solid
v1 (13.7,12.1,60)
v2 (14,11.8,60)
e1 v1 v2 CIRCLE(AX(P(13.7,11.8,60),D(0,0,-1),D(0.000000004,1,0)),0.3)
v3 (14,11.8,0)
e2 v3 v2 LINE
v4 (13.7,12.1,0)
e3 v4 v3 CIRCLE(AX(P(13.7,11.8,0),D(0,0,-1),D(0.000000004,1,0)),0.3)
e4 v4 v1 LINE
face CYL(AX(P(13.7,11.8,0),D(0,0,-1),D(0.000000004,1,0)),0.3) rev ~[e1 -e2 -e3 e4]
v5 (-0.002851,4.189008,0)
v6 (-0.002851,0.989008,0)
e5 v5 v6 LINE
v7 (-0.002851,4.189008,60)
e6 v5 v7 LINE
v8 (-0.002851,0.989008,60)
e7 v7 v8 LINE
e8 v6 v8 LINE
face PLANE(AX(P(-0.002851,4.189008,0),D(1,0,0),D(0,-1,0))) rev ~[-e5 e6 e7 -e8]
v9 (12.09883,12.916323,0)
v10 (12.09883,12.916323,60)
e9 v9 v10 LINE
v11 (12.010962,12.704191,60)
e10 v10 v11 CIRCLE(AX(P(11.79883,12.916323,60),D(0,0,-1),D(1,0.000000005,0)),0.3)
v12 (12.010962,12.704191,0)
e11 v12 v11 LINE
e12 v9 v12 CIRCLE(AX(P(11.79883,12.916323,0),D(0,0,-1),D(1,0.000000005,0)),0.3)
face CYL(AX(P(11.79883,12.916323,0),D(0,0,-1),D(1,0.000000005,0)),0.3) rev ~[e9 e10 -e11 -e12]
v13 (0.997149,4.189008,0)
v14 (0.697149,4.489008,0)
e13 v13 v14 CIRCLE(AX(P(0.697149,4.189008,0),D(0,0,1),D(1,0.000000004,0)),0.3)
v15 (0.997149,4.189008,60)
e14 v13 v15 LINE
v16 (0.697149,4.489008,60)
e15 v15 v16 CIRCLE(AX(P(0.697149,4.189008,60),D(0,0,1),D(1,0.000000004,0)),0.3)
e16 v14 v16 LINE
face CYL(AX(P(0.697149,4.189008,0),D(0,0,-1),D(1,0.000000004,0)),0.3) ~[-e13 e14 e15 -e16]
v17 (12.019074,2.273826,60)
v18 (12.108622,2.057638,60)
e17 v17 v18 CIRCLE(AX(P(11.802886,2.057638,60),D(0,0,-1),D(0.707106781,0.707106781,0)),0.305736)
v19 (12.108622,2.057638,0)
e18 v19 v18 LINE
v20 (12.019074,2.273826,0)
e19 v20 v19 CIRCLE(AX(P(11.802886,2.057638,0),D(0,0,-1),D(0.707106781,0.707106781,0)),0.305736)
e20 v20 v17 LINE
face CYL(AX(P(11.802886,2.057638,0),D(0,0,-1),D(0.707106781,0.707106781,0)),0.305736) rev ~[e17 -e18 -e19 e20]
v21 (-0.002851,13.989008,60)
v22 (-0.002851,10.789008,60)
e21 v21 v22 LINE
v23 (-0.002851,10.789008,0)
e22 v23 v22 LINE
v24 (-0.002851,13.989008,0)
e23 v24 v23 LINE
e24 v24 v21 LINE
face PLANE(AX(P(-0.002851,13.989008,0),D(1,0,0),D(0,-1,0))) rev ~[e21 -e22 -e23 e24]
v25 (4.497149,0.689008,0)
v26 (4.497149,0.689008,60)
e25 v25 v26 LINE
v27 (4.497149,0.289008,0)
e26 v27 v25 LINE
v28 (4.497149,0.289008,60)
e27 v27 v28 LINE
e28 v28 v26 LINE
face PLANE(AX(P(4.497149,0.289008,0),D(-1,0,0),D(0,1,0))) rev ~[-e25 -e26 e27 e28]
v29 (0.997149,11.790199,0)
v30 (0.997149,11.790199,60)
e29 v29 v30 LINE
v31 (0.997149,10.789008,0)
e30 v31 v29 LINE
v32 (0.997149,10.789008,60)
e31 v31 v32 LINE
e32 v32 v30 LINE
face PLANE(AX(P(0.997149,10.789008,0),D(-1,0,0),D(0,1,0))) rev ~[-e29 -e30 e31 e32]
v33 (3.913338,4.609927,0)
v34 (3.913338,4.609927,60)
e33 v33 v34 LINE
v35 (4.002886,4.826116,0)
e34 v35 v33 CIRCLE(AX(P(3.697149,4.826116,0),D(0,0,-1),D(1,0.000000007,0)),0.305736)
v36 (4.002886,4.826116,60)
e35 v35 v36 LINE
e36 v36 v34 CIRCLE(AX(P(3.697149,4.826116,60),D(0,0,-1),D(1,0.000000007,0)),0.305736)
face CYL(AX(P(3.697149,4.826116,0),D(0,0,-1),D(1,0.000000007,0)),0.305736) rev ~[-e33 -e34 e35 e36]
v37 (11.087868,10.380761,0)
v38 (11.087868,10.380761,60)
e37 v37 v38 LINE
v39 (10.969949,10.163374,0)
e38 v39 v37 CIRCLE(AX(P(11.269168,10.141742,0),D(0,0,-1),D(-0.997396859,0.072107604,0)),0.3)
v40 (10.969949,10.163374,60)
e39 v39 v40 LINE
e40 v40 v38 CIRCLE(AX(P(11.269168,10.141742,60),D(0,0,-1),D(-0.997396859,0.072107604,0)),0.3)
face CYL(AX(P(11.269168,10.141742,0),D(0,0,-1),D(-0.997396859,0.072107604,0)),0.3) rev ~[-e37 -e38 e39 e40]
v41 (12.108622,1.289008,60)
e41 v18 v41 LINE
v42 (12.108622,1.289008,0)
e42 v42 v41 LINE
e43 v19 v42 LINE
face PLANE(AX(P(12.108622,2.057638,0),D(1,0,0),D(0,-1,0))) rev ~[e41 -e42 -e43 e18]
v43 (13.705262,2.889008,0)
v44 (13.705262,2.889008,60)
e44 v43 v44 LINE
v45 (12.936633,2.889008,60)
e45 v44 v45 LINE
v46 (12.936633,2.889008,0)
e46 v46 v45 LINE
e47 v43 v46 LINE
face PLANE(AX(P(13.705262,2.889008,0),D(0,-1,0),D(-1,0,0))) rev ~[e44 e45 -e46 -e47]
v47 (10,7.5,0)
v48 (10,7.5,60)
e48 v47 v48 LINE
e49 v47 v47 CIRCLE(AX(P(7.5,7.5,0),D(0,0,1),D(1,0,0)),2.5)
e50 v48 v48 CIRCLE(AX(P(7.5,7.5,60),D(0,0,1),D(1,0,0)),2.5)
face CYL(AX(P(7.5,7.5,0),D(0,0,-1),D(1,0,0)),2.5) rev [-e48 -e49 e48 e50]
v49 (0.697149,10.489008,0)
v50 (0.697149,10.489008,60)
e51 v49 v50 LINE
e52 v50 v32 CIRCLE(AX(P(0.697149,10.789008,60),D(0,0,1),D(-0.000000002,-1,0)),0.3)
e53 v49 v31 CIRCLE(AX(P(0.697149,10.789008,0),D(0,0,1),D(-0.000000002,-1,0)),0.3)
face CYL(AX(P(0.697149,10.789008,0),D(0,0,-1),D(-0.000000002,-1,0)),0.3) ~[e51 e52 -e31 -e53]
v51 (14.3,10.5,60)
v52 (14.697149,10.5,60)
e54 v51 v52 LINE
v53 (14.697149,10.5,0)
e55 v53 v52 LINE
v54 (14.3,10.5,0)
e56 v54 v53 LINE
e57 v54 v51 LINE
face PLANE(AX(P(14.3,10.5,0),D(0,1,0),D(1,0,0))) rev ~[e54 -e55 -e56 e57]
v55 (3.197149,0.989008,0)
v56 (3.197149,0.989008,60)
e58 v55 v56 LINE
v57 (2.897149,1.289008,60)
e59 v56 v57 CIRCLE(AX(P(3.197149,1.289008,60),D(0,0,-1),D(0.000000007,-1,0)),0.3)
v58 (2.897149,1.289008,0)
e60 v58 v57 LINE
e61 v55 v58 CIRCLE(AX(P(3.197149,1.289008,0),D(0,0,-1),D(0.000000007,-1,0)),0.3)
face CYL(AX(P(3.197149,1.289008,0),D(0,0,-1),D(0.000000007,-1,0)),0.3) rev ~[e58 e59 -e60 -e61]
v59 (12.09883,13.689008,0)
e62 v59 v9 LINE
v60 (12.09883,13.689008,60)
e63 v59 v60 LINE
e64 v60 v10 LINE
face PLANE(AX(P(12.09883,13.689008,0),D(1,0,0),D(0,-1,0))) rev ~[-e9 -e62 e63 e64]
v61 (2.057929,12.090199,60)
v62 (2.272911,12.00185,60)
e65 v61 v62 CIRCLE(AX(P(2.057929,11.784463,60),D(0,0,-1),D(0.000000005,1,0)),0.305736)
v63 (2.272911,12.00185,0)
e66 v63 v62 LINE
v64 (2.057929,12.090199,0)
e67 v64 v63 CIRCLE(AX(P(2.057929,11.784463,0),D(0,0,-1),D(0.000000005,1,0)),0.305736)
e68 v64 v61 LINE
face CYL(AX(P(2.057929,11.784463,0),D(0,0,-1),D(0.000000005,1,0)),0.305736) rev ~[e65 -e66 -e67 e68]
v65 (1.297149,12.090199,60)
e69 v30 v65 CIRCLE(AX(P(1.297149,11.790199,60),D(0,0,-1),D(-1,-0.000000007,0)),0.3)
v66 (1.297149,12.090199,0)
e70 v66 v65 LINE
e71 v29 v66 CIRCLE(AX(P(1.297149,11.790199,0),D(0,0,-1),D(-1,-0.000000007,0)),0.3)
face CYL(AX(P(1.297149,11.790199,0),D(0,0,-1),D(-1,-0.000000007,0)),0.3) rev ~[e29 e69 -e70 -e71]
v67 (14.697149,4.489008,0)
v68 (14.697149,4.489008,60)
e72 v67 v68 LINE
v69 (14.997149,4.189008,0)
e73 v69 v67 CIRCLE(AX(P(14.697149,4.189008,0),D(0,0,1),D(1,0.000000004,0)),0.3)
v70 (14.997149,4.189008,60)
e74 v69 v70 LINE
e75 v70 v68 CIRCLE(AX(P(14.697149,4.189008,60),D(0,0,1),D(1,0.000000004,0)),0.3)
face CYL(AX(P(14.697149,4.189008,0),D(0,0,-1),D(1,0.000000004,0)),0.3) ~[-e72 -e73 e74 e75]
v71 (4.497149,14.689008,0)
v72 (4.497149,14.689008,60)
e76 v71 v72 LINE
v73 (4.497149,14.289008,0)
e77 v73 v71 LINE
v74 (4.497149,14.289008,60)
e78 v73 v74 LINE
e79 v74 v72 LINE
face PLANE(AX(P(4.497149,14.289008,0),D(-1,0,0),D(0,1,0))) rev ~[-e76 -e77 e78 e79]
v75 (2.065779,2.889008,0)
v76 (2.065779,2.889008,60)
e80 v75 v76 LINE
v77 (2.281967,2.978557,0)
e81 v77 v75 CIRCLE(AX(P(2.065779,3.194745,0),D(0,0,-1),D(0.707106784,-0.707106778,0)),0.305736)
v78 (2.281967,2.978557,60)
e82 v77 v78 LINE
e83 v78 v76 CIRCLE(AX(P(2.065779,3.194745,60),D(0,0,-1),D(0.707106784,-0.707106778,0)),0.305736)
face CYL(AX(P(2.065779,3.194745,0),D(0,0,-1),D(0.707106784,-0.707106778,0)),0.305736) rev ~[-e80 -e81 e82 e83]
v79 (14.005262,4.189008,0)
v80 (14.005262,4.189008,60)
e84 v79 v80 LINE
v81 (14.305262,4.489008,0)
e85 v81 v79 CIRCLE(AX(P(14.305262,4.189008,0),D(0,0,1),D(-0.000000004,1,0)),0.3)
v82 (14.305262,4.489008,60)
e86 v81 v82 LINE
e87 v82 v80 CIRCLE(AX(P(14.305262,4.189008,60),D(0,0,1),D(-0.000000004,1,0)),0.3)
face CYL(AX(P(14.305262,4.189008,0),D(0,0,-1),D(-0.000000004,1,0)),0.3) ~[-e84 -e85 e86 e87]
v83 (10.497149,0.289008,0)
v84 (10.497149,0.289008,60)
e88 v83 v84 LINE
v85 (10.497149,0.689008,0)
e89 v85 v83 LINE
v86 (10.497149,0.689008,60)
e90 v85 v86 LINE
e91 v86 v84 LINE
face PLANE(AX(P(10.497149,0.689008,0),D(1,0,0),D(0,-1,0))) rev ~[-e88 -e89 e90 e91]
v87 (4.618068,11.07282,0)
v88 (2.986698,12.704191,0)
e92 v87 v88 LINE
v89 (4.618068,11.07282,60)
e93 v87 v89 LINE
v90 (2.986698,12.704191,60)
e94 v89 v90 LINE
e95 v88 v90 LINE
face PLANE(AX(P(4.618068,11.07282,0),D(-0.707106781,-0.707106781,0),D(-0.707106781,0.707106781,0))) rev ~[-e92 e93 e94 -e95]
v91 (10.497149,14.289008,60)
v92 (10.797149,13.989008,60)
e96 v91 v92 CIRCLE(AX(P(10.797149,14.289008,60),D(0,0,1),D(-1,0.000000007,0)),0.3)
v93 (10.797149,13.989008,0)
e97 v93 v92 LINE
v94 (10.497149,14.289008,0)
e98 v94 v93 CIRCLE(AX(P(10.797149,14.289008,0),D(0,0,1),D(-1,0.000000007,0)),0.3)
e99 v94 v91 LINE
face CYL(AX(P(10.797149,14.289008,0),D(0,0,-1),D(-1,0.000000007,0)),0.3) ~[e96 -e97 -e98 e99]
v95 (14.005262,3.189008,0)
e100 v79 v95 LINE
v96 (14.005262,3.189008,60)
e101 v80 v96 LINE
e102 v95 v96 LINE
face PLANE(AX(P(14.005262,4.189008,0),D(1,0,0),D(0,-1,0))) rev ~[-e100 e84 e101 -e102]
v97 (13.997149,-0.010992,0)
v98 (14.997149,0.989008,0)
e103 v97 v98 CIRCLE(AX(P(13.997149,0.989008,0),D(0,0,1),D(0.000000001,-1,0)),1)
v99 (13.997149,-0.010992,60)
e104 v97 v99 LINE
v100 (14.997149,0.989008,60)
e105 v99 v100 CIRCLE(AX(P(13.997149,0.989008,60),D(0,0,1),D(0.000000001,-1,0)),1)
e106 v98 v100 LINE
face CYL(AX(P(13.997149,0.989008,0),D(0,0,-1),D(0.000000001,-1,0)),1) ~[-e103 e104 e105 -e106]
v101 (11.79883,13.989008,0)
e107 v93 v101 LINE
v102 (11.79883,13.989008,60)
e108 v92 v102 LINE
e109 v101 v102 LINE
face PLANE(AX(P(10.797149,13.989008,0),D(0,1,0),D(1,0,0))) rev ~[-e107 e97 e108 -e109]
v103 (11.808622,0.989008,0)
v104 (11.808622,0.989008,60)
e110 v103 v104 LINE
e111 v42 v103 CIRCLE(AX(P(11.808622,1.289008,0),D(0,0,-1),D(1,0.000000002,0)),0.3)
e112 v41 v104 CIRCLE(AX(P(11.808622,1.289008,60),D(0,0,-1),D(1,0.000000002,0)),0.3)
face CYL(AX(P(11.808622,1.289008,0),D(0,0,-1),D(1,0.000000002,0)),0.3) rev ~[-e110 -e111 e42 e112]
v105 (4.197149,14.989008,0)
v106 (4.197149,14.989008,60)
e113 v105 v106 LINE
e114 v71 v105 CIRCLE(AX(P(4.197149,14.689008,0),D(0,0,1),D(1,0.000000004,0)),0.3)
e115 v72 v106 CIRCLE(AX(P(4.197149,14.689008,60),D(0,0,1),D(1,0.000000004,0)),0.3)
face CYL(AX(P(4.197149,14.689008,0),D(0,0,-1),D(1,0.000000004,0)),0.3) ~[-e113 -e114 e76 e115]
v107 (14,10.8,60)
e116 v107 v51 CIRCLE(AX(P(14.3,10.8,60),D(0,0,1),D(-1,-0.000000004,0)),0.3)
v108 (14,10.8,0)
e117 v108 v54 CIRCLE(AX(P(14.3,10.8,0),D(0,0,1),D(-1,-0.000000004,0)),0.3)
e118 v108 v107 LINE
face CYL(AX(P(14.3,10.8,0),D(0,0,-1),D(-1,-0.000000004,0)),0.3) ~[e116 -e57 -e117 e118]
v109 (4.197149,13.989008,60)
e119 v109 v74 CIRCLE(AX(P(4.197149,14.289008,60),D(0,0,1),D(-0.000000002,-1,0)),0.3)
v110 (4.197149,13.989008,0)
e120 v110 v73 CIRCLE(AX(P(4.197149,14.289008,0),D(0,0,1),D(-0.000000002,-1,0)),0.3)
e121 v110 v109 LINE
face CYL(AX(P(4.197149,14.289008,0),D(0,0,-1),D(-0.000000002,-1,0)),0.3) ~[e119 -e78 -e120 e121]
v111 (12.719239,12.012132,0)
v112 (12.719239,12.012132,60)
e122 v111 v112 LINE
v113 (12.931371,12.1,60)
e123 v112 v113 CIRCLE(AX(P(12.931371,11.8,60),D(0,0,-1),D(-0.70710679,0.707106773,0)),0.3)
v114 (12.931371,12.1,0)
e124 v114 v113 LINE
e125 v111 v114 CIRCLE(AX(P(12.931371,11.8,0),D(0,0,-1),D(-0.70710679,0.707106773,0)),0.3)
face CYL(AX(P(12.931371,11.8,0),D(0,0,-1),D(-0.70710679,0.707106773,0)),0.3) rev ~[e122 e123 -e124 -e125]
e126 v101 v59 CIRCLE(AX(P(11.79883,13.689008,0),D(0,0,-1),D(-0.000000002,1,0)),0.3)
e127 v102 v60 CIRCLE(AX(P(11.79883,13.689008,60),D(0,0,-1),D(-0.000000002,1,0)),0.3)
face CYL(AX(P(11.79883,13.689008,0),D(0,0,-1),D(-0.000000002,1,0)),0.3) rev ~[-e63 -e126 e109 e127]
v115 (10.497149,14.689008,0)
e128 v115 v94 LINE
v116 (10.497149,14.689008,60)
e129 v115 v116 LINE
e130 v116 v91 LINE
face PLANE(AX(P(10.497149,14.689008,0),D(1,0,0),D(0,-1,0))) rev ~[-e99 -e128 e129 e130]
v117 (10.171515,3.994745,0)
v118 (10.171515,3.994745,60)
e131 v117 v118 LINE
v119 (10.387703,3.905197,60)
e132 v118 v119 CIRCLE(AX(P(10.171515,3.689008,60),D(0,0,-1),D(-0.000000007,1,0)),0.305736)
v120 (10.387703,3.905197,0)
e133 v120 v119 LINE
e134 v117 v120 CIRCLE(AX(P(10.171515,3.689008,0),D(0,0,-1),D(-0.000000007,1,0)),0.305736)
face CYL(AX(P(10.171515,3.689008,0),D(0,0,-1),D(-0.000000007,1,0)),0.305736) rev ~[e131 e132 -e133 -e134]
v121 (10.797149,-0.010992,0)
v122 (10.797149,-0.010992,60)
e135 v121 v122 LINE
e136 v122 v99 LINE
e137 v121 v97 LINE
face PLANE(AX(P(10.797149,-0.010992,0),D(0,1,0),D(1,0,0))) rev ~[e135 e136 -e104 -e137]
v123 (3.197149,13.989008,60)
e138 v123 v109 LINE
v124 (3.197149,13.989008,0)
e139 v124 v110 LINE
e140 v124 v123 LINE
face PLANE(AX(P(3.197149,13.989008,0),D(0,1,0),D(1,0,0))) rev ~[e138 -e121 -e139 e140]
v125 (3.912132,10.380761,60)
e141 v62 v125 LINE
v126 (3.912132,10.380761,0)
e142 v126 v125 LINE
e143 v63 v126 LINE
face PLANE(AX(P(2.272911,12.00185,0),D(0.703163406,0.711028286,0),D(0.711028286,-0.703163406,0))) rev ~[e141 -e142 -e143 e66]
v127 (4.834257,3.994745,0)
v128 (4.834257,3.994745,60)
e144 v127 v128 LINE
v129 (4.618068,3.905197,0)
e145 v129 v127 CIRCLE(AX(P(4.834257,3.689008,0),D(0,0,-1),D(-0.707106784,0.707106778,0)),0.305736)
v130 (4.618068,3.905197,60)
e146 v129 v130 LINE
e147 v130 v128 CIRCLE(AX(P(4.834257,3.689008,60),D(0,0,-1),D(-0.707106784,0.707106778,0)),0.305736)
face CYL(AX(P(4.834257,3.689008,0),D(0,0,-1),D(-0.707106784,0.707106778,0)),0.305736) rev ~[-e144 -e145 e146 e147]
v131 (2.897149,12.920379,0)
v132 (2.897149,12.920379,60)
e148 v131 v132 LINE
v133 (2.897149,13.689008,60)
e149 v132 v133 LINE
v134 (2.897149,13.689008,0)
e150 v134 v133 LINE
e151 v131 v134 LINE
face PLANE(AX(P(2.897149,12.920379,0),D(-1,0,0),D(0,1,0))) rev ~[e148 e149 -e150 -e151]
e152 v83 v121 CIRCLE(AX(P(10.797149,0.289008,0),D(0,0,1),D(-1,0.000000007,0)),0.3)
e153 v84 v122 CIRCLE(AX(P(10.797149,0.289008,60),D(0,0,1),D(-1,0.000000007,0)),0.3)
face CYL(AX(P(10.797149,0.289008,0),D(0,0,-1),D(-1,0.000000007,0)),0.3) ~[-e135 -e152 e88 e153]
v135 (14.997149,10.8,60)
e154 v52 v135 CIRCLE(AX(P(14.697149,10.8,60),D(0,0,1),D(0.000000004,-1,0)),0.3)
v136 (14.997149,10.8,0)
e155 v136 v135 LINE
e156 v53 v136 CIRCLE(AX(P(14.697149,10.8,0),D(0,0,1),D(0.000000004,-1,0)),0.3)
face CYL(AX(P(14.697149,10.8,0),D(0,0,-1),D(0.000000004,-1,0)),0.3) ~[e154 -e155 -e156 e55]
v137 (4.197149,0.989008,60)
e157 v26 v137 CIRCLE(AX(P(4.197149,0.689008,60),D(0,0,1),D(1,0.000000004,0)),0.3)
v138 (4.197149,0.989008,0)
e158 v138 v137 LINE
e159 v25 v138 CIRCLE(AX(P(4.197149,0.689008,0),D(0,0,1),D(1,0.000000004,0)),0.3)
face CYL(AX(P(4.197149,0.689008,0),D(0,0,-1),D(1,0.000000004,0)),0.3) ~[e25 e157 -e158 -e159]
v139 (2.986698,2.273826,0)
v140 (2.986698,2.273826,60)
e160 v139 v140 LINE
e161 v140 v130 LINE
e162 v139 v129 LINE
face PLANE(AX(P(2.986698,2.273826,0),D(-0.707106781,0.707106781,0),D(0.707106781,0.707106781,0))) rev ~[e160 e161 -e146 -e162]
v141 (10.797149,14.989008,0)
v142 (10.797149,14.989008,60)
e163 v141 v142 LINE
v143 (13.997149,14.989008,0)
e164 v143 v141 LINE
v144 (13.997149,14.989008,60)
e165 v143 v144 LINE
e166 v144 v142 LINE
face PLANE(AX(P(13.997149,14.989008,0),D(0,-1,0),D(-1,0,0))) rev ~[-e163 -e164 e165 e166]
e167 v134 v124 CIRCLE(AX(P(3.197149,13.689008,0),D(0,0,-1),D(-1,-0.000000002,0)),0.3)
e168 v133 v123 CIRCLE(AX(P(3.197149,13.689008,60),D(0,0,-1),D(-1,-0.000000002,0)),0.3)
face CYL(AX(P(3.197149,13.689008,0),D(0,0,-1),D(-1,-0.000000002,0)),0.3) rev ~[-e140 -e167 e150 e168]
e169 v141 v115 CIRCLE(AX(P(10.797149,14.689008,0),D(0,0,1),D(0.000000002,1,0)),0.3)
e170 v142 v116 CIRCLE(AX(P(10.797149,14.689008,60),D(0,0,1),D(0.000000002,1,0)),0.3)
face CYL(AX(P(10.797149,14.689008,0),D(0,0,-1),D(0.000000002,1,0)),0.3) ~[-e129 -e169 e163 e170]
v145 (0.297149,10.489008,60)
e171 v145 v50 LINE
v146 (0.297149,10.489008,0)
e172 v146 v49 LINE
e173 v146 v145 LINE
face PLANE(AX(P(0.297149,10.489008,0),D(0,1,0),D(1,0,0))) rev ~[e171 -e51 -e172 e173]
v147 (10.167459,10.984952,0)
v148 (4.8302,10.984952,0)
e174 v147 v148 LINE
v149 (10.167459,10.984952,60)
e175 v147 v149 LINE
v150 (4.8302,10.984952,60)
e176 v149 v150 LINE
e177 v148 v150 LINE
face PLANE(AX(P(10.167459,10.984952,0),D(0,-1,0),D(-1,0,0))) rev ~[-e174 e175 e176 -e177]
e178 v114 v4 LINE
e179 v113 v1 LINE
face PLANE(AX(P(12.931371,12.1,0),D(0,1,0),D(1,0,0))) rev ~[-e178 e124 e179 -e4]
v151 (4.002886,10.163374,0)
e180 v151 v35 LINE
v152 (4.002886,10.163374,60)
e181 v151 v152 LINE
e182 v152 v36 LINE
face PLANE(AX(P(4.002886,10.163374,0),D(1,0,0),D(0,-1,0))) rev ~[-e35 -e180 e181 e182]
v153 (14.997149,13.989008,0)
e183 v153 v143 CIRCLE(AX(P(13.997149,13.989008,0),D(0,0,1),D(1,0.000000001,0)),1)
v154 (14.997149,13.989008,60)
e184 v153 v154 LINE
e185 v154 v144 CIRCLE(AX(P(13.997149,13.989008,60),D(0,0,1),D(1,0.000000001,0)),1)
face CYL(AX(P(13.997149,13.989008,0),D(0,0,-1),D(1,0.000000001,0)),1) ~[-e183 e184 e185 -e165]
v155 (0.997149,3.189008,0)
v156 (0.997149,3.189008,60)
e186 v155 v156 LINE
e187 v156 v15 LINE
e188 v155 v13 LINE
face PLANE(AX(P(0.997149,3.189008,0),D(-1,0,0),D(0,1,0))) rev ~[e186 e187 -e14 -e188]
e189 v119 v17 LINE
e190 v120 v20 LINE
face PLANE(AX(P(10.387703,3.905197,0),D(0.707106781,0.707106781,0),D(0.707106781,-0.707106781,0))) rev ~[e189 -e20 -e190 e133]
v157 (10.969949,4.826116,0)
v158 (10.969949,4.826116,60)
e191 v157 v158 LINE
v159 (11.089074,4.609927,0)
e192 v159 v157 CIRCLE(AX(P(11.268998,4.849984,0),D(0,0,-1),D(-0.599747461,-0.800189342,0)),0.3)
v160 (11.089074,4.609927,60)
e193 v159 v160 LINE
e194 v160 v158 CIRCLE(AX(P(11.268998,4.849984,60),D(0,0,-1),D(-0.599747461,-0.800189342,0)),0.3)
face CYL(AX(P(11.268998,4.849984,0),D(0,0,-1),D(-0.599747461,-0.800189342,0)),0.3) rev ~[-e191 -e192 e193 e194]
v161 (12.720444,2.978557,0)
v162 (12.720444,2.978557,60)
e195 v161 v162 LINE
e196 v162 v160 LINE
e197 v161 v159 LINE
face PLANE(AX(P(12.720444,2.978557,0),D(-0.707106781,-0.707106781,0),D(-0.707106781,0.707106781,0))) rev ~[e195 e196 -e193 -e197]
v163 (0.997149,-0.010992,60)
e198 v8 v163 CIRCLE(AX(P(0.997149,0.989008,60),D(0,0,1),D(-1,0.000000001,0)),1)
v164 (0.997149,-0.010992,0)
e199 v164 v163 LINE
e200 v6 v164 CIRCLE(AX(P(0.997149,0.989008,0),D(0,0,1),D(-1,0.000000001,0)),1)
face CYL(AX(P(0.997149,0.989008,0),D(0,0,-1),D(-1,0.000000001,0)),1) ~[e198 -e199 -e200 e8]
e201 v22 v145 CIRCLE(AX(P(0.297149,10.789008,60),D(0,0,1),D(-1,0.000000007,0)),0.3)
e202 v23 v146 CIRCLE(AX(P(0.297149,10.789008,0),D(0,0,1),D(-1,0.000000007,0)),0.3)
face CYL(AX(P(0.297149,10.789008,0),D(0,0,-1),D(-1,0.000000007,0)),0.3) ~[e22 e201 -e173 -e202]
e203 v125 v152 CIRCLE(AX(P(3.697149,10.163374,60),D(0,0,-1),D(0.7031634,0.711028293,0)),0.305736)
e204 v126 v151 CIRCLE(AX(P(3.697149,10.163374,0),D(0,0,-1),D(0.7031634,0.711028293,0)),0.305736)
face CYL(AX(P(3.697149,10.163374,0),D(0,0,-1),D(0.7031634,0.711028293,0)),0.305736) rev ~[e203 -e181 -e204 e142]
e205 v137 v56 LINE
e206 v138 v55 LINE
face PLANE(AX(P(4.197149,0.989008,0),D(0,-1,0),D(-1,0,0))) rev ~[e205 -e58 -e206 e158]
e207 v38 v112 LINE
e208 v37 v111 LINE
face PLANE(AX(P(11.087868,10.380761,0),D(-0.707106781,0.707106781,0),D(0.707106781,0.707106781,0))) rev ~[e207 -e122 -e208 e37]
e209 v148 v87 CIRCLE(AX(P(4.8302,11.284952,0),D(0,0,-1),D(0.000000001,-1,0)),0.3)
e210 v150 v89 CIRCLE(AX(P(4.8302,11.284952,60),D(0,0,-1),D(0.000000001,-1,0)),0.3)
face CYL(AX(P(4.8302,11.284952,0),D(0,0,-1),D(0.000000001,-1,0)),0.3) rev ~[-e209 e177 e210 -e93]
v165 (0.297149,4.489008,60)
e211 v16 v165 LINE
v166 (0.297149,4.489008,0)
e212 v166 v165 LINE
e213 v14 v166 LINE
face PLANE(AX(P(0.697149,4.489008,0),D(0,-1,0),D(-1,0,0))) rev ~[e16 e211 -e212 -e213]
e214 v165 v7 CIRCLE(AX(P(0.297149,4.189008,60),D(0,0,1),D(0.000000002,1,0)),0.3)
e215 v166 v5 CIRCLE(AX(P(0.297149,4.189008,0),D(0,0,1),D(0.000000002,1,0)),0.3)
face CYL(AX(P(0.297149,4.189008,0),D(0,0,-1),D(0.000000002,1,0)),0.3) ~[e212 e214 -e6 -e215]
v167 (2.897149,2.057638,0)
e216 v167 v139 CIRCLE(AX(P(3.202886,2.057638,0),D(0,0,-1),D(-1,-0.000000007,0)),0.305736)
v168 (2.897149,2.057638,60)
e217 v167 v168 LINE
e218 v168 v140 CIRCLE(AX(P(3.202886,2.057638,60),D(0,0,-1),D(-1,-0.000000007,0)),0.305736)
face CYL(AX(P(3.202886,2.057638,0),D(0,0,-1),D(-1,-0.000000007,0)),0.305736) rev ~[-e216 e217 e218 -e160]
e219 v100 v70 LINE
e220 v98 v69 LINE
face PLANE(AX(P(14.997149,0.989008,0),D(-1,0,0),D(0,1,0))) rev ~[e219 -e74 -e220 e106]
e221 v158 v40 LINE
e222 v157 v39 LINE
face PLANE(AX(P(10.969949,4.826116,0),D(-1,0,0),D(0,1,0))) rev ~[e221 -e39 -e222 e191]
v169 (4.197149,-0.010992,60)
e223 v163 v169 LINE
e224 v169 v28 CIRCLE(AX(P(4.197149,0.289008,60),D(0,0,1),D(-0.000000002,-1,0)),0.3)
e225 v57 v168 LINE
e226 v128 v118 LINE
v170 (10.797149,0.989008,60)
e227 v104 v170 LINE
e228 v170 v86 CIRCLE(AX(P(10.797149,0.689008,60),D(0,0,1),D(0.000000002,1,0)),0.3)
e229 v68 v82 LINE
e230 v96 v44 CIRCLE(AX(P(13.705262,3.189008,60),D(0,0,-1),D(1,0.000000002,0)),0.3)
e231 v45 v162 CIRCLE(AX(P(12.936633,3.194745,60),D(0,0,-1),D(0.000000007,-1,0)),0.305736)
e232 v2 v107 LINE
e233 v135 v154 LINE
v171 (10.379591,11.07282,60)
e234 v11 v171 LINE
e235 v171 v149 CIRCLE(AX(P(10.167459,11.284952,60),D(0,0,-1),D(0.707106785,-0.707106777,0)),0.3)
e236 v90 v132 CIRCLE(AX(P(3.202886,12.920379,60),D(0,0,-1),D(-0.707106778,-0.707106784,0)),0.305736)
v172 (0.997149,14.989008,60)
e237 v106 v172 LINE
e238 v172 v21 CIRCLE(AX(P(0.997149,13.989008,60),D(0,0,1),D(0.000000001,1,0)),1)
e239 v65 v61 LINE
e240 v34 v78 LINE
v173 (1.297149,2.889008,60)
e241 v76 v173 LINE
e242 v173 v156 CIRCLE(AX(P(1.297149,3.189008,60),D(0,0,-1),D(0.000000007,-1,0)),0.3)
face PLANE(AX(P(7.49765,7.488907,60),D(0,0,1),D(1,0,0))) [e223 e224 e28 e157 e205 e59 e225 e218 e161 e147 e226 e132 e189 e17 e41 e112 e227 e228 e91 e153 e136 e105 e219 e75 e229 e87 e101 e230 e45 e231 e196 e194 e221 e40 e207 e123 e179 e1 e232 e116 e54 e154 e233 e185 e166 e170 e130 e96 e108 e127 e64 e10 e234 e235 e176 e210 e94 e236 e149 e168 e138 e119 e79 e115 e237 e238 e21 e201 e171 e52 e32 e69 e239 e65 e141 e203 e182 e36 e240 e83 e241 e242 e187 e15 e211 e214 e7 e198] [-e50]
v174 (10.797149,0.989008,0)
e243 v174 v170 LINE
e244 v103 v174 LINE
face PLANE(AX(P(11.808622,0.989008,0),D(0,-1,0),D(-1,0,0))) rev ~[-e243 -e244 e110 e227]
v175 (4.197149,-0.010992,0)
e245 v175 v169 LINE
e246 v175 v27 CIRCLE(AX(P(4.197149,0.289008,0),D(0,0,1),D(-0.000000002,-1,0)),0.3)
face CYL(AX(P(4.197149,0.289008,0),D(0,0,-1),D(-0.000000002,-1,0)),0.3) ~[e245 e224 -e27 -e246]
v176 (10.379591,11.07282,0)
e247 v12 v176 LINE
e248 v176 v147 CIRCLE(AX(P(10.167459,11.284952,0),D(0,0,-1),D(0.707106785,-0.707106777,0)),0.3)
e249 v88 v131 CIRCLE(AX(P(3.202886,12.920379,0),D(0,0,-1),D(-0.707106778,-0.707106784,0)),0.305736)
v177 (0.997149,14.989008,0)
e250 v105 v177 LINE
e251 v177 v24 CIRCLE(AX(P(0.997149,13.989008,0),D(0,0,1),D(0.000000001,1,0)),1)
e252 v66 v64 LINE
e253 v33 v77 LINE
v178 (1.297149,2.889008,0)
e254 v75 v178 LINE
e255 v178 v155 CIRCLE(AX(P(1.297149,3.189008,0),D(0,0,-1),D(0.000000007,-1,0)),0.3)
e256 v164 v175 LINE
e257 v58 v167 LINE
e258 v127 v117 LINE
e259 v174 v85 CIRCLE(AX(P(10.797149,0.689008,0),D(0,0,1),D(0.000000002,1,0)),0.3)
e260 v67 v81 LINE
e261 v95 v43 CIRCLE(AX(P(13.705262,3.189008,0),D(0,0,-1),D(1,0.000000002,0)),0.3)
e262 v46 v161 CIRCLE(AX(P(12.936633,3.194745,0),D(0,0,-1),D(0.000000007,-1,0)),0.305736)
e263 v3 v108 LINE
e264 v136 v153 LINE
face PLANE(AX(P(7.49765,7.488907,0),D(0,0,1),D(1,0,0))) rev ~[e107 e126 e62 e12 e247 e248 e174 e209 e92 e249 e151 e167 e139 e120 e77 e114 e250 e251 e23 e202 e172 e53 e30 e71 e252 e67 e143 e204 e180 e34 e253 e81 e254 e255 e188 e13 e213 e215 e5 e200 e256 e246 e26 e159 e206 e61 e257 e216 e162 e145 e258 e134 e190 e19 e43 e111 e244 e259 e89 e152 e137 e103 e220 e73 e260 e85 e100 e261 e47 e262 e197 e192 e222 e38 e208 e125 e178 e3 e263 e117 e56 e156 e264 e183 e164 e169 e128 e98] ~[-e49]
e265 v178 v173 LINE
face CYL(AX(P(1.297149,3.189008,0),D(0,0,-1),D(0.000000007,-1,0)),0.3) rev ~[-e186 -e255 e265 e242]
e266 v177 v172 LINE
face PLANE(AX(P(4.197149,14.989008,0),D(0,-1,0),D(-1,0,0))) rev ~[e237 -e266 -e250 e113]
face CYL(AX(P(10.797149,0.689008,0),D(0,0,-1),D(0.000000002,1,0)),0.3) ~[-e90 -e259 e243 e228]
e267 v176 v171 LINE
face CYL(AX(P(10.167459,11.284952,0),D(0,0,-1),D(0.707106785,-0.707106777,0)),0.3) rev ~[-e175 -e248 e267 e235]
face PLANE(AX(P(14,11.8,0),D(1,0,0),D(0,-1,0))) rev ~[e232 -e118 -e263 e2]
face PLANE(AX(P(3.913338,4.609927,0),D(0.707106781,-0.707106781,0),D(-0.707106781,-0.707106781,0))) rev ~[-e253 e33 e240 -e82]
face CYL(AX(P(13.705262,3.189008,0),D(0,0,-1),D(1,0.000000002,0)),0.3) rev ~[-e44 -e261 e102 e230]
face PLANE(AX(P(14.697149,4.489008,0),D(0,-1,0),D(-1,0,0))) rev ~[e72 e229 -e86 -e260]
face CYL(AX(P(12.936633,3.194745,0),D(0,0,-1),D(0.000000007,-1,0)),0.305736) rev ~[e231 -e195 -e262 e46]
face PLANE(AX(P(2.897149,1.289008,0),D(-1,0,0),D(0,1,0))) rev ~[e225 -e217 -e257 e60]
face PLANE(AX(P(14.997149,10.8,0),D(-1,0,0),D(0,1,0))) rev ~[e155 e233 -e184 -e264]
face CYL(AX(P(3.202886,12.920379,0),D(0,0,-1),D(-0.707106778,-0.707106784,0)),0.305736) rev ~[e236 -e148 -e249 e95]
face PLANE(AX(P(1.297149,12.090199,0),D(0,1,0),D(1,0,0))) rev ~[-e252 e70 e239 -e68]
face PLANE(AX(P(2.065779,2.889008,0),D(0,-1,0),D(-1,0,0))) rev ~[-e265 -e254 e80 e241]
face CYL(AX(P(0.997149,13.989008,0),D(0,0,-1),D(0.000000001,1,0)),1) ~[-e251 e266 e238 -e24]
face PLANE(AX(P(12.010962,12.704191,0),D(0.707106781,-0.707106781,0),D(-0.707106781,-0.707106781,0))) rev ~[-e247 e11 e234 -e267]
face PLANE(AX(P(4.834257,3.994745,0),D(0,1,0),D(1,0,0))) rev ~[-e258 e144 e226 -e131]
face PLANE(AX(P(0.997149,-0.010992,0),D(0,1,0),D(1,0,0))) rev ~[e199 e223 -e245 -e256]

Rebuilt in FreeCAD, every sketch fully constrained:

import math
import FreeCAD as App
import Part
import Sketcher

V = App.Vector
Q = App.Units.Quantity

doc = App.newDocument("Part")
params = doc.addObject("Spreadsheet::Sheet", "Params")
for row, (alias, value) in enumerate([
    ("sketch1_diameter", "5 mm"),
    ("sketch1_radius", "1 mm"),
    ("sketch1_radius2", "0.3 mm"),
    ("sketch1_width", "1 mm"),
    ("sketch1_width2", "3.2 mm"),
    ("pad1_length", "60 mm"),
], start=1):
    params.set(f"A{row}", alias)
    params.set(f"B{row}", "=" + value)
    params.setAlias(f"B{row}", alias)

body = doc.addObject("PartDesign::Body", "Body")

# Sketch on XY plane
sketch1 = body.newObject("Sketcher::SketchObject", "Sketch")
sketch1.AttachmentSupport = (doc.getObject("XY_Plane"), [""])
sketch1.MapMode = "FlatFace"
sketch1.addGeometry([
    Part.LineSegment(V(1, -0.01, 0), V(4.2, -0.01, 0)),  # 0
    Part.ArcOfCircle(Part.Circle(V(4.2, 0.29, 0), V(0, 0, 1), 0.3), math.radians(-90), math.radians(0)),  # 1
    Part.LineSegment(V(4.5, 0.29, 0), V(4.5, 0.69, 0)),  # 2
    Part.ArcOfCircle(Part.Circle(V(4.2, 0.69, 0), V(0, 0, 1), 0.3), math.radians(0), math.radians(90)),  # 3
    Part.LineSegment(V(4.2, 0.99, 0), V(3.2, 0.99, 0)),  # 4
    Part.ArcOfCircle(Part.Circle(V(3.2, 1.29, 0), V(0, 0, 1), 0.3), math.radians(180), math.radians(270)),  # 5
    Part.LineSegment(V(2.9, 1.29, 0), V(2.9, 2.06, 0)),  # 6
    Part.ArcOfCircle(Part.Circle(V(3.2, 2.06, 0), V(0, 0, 1), 0.31), math.radians(135), math.radians(180)),  # 7
    Part.LineSegment(V(2.99, 2.27, 0), V(4.62, 3.91, 0)),  # 8
    Part.ArcOfCircle(Part.Circle(V(4.83, 3.69, 0), V(0, 0, 1), 0.31), math.radians(90), math.radians(135)),  # 9
    Part.LineSegment(V(4.83, 3.99, 0), V(10.17, 3.99, 0)),  # 10
    Part.ArcOfCircle(Part.Circle(V(10.17, 3.69, 0), V(0, 0, 1), 0.31), math.radians(45), math.radians(90)),  # 11
    Part.LineSegment(V(10.39, 3.91, 0), V(12.02, 2.27, 0)),  # 12
    Part.ArcOfCircle(Part.Circle(V(11.8, 2.06, 0), V(0, 0, 1), 0.31), math.radians(0), math.radians(45)),  # 13
    Part.LineSegment(V(12.11, 2.06, 0), V(12.11, 1.29, 0)),  # 14
    Part.ArcOfCircle(Part.Circle(V(11.81, 1.29, 0), V(0, 0, 1), 0.3), math.radians(-90), math.radians(0)),  # 15
    Part.LineSegment(V(11.81, 0.99, 0), V(10.8, 0.99, 0)),  # 16
    Part.ArcOfCircle(Part.Circle(V(10.8, 0.69, 0), V(0, 0, 1), 0.3), math.radians(90), math.radians(180)),  # 17
    Part.LineSegment(V(10.5, 0.69, 0), V(10.5, 0.29, 0)),  # 18
    Part.ArcOfCircle(Part.Circle(V(10.8, 0.29, 0), V(0, 0, 1), 0.3), math.radians(180), math.radians(270)),  # 19
    Part.LineSegment(V(10.8, -0.01, 0), V(14, -0.01, 0)),  # 20
    Part.ArcOfCircle(Part.Circle(V(14, 0.99, 0), V(0, 0, 1), 1), math.radians(-90), math.radians(0)),  # 21
    Part.LineSegment(V(15, 0.99, 0), V(15, 4.19, 0)),  # 22
    Part.ArcOfCircle(Part.Circle(V(14.7, 4.19, 0), V(0, 0, 1), 0.3), math.radians(0), math.radians(90)),  # 23
    Part.LineSegment(V(14.7, 4.49, 0), V(14.31, 4.49, 0)),  # 24
    Part.ArcOfCircle(Part.Circle(V(14.31, 4.19, 0), V(0, 0, 1), 0.3), math.radians(90), math.radians(180)),  # 25
    Part.LineSegment(V(14.01, 4.19, 0), V(14.01, 3.19, 0)),  # 26
    Part.ArcOfCircle(Part.Circle(V(13.71, 3.19, 0), V(0, 0, 1), 0.3), math.radians(-90), math.radians(0)),  # 27
    Part.LineSegment(V(13.71, 2.89, 0), V(12.94, 2.89, 0)),  # 28
    Part.ArcOfCircle(Part.Circle(V(12.94, 3.19, 0), V(0, 0, 1), 0.31), math.radians(-135), math.radians(-90)),  # 29
    Part.LineSegment(V(12.72, 2.98, 0), V(11.09, 4.61, 0)),  # 30
    Part.ArcOfCircle(Part.Circle(V(11.27, 4.85, 0), V(0, 0, 1), 0.3), math.radians(-175), math.radians(-127)),  # 31
    Part.LineSegment(V(10.97, 4.83, 0), V(10.97, 10.16, 0)),  # 32
    Part.ArcOfCircle(Part.Circle(V(11.27, 10.14, 0), V(0, 0, 1), 0.3), math.radians(127), math.radians(176)),  # 33
    Part.LineSegment(V(11.09, 10.38, 0), V(12.72, 12.01, 0)),  # 34
    Part.ArcOfCircle(Part.Circle(V(12.93, 11.8, 0), V(0, 0, 1), 0.3), math.radians(90), math.radians(135)),  # 35
    Part.LineSegment(V(12.93, 12.1, 0), V(13.7, 12.1, 0)),  # 36
    Part.ArcOfCircle(Part.Circle(V(13.7, 11.8, 0), V(0, 0, 1), 0.3), math.radians(0), math.radians(90)),  # 37
    Part.LineSegment(V(14, 11.8, 0), V(14, 10.8, 0)),  # 38
    Part.ArcOfCircle(Part.Circle(V(14.3, 10.8, 0), V(0, 0, 1), 0.3), math.radians(-180), math.radians(-90)),  # 39
    Part.LineSegment(V(14.3, 10.5, 0), V(14.7, 10.5, 0)),  # 40
    Part.ArcOfCircle(Part.Circle(V(14.7, 10.8, 0), V(0, 0, 1), 0.3), math.radians(-90), math.radians(0)),  # 41
    Part.LineSegment(V(15, 10.8, 0), V(15, 13.99, 0)),  # 42
    Part.ArcOfCircle(Part.Circle(V(14, 13.99, 0), V(0, 0, 1), 1), math.radians(0), math.radians(90)),  # 43
    Part.LineSegment(V(14, 14.99, 0), V(10.8, 14.99, 0)),  # 44
    Part.ArcOfCircle(Part.Circle(V(10.8, 14.69, 0), V(0, 0, 1), 0.3), math.radians(90), math.radians(180)),  # 45
    Part.LineSegment(V(10.5, 14.69, 0), V(10.5, 14.29, 0)),  # 46
    Part.ArcOfCircle(Part.Circle(V(10.8, 14.29, 0), V(0, 0, 1), 0.3), math.radians(180), math.radians(270)),  # 47
    Part.LineSegment(V(10.8, 13.99, 0), V(11.8, 13.99, 0)),  # 48
    Part.ArcOfCircle(Part.Circle(V(11.8, 13.69, 0), V(0, 0, 1), 0.3), math.radians(0), math.radians(90)),  # 49
    Part.LineSegment(V(12.1, 13.69, 0), V(12.1, 12.92, 0)),  # 50
    Part.ArcOfCircle(Part.Circle(V(11.8, 12.92, 0), V(0, 0, 1), 0.3), math.radians(-45), math.radians(0)),  # 51
    Part.LineSegment(V(12.01, 12.7, 0), V(10.38, 11.07, 0)),  # 52
    Part.ArcOfCircle(Part.Circle(V(10.17, 11.28, 0), V(0, 0, 1), 0.3), math.radians(-90), math.radians(-45)),  # 53
    Part.LineSegment(V(10.17, 10.98, 0), V(4.83, 10.98, 0)),  # 54
    Part.ArcOfCircle(Part.Circle(V(4.83, 11.28, 0), V(0, 0, 1), 0.3), math.radians(-135), math.radians(-90)),  # 55
    Part.LineSegment(V(4.62, 11.07, 0), V(2.99, 12.7, 0)),  # 56
    Part.ArcOfCircle(Part.Circle(V(3.2, 12.92, 0), V(0, 0, 1), 0.31), math.radians(180), math.radians(225)),  # 57
    Part.LineSegment(V(2.9, 12.92, 0), V(2.9, 13.69, 0)),  # 58
    Part.ArcOfCircle(Part.Circle(V(3.2, 13.69, 0), V(0, 0, 1), 0.3), math.radians(90), math.radians(180)),  # 59
    Part.LineSegment(V(3.2, 13.99, 0), V(4.2, 13.99, 0)),  # 60
    Part.ArcOfCircle(Part.Circle(V(4.2, 14.29, 0), V(0, 0, 1), 0.3), math.radians(-90), math.radians(0)),  # 61
    Part.LineSegment(V(4.5, 14.29, 0), V(4.5, 14.69, 0)),  # 62
    Part.ArcOfCircle(Part.Circle(V(4.2, 14.69, 0), V(0, 0, 1), 0.3), math.radians(0), math.radians(90)),  # 63
    Part.LineSegment(V(4.2, 14.99, 0), V(1, 14.99, 0)),  # 64
    Part.ArcOfCircle(Part.Circle(V(1, 13.99, 0), V(0, 0, 1), 1), math.radians(90), math.radians(180)),  # 65
    Part.LineSegment(V(0, 13.99, 0), V(0, 10.79, 0)),  # 66
    Part.ArcOfCircle(Part.Circle(V(0.3, 10.79, 0), V(0, 0, 1), 0.3), math.radians(180), math.radians(270)),  # 67
    Part.LineSegment(V(0.3, 10.49, 0), V(0.7, 10.49, 0)),  # 68
    Part.ArcOfCircle(Part.Circle(V(0.7, 10.79, 0), V(0, 0, 1), 0.3), math.radians(-90), math.radians(0)),  # 69
    Part.LineSegment(V(1, 10.79, 0), V(1, 11.79, 0)),  # 70
    Part.ArcOfCircle(Part.Circle(V(1.3, 11.79, 0), V(0, 0, 1), 0.3), math.radians(90), math.radians(180)),  # 71
    Part.LineSegment(V(1.3, 12.09, 0), V(2.06, 12.09, 0)),  # 72
    Part.ArcOfCircle(Part.Circle(V(2.06, 11.78, 0), V(0, 0, 1), 0.31), math.radians(45), math.radians(90)),  # 73
    Part.LineSegment(V(2.27, 12, 0), V(3.91, 10.38, 0)),  # 74
    Part.ArcOfCircle(Part.Circle(V(3.7, 10.16, 0), V(0, 0, 1), 0.31), math.radians(0), math.radians(45)),  # 75
    Part.LineSegment(V(4, 10.16, 0), V(4, 4.83, 0)),  # 76
    Part.ArcOfCircle(Part.Circle(V(3.7, 4.83, 0), V(0, 0, 1), 0.31), math.radians(-45), math.radians(0)),  # 77
    Part.LineSegment(V(3.91, 4.61, 0), V(2.28, 2.98, 0)),  # 78
    Part.ArcOfCircle(Part.Circle(V(2.07, 3.19, 0), V(0, 0, 1), 0.31), math.radians(-90), math.radians(-45)),  # 79
    Part.LineSegment(V(2.07, 2.89, 0), V(1.3, 2.89, 0)),  # 80
    Part.ArcOfCircle(Part.Circle(V(1.3, 3.19, 0), V(0, 0, 1), 0.3), math.radians(180), math.radians(270)),  # 81
    Part.LineSegment(V(1, 3.19, 0), V(1, 4.19, 0)),  # 82
    Part.ArcOfCircle(Part.Circle(V(0.7, 4.19, 0), V(0, 0, 1), 0.3), math.radians(0), math.radians(90)),  # 83
    Part.LineSegment(V(0.7, 4.49, 0), V(0.3, 4.49, 0)),  # 84
    Part.ArcOfCircle(Part.Circle(V(0.3, 4.19, 0), V(0, 0, 1), 0.3), math.radians(90), math.radians(180)),  # 85
    Part.LineSegment(V(0, 4.19, 0), V(0, 0.99, 0)),  # 86
    Part.ArcOfCircle(Part.Circle(V(1, 0.99, 0), V(0, 0, 1), 1), math.radians(180), math.radians(270)),  # 87
    Part.Circle(V(7.5, 7.5, 0), V(0, 0, 1), 2.5),  # 88
], False)
sketch1.addConstraint([
    Sketcher.Constraint("Tangent", 0, 2, 1, 1),
    Sketcher.Constraint("Tangent", 1, 2, 2, 1),
    Sketcher.Constraint("Tangent", 2, 2, 3, 1),
    Sketcher.Constraint("Tangent", 3, 2, 4, 1),
    Sketcher.Constraint("Tangent", 4, 2, 5, 2),
    Sketcher.Constraint("Tangent", 5, 1, 6, 1),
    Sketcher.Constraint("Tangent", 6, 2, 7, 2),
    Sketcher.Constraint("Tangent", 7, 1, 8, 1),
    Sketcher.Constraint("Tangent", 8, 2, 9, 2),
    Sketcher.Constraint("Tangent", 9, 1, 10, 1),
    Sketcher.Constraint("Tangent", 10, 2, 11, 2),
    Sketcher.Constraint("Tangent", 11, 1, 12, 1),
    Sketcher.Constraint("Tangent", 12, 2, 13, 2),
    Sketcher.Constraint("Tangent", 13, 1, 14, 1),
    Sketcher.Constraint("Tangent", 14, 2, 15, 2),
    Sketcher.Constraint("Tangent", 15, 1, 16, 1),
    Sketcher.Constraint("Tangent", 16, 2, 17, 1),
    Sketcher.Constraint("Tangent", 17, 2, 18, 1),
    Sketcher.Constraint("Tangent", 18, 2, 19, 1),
    Sketcher.Constraint("Tangent", 19, 2, 20, 1),
    Sketcher.Constraint("Tangent", 20, 2, 21, 1),
    Sketcher.Constraint("Tangent", 21, 2, 22, 1),
    Sketcher.Constraint("Tangent", 22, 2, 23, 1),
    Sketcher.Constraint("Tangent", 23, 2, 24, 1),
    Sketcher.Constraint("Tangent", 24, 2, 25, 1),
    Sketcher.Constraint("Tangent", 25, 2, 26, 1),
    Sketcher.Constraint("Tangent", 26, 2, 27, 2),
    Sketcher.Constraint("Tangent", 27, 1, 28, 1),
    Sketcher.Constraint("Tangent", 28, 2, 29, 2),
    Sketcher.Constraint("Tangent", 29, 1, 30, 1),
    Sketcher.Constraint("Coincident", 30, 2, 31, 2),
    Sketcher.Constraint("Coincident", 31, 1, 32, 1),
    Sketcher.Constraint("Coincident", 32, 2, 33, 2),
    Sketcher.Constraint("Coincident", 33, 1, 34, 1),
    Sketcher.Constraint("Tangent", 34, 2, 35, 2),
    Sketcher.Constraint("Tangent", 35, 1, 36, 1),
    Sketcher.Constraint("Tangent", 36, 2, 37, 2),
    Sketcher.Constraint("Tangent", 37, 1, 38, 1),
    Sketcher.Constraint("Tangent", 38, 2, 39, 1),
    Sketcher.Constraint("Tangent", 39, 2, 40, 1),
    Sketcher.Constraint("Tangent", 40, 2, 41, 1),
    Sketcher.Constraint("Tangent", 41, 2, 42, 1),
    Sketcher.Constraint("Tangent", 42, 2, 43, 1),
    Sketcher.Constraint("Tangent", 43, 2, 44, 1),
    Sketcher.Constraint("Tangent", 44, 2, 45, 1),
    Sketcher.Constraint("Tangent", 45, 2, 46, 1),
    Sketcher.Constraint("Tangent", 46, 2, 47, 1),
    Sketcher.Constraint("Tangent", 47, 2, 48, 1),
    Sketcher.Constraint("Tangent", 48, 2, 49, 2),
    Sketcher.Constraint("Tangent", 49, 1, 50, 1),
    Sketcher.Constraint("Tangent", 50, 2, 51, 2),
    Sketcher.Constraint("Tangent", 51, 1, 52, 1),
    Sketcher.Constraint("Tangent", 52, 2, 53, 2),
    Sketcher.Constraint("Tangent", 53, 1, 54, 1),
    Sketcher.Constraint("Tangent", 54, 2, 55, 2),
    Sketcher.Constraint("Tangent", 55, 1, 56, 1),
    Sketcher.Constraint("Tangent", 56, 2, 57, 2),
    Sketcher.Constraint("Tangent", 57, 1, 58, 1),
    Sketcher.Constraint("Tangent", 58, 2, 59, 2),
    Sketcher.Constraint("Tangent", 59, 1, 60, 1),
    Sketcher.Constraint("Tangent", 60, 2, 61, 1),
    Sketcher.Constraint("Tangent", 61, 2, 62, 1),
    Sketcher.Constraint("Tangent", 62, 2, 63, 1),
    Sketcher.Constraint("Tangent", 63, 2, 64, 1),
    Sketcher.Constraint("Tangent", 64, 2, 65, 1),
    Sketcher.Constraint("Tangent", 65, 2, 66, 1),
    Sketcher.Constraint("Tangent", 66, 2, 67, 1),
    Sketcher.Constraint("Tangent", 67, 2, 68, 1),
    Sketcher.Constraint("Tangent", 68, 2, 69, 1),
    Sketcher.Constraint("Tangent", 69, 2, 70, 1),
    Sketcher.Constraint("Tangent", 70, 2, 71, 2),
    Sketcher.Constraint("Tangent", 71, 1, 72, 1),
    Sketcher.Constraint("Tangent", 72, 2, 73, 2),
    Sketcher.Constraint("Tangent", 73, 1, 74, 1),
    Sketcher.Constraint("Tangent", 74, 2, 75, 2),
    Sketcher.Constraint("Tangent", 75, 1, 76, 1),
    Sketcher.Constraint("Tangent", 76, 2, 77, 2),
    Sketcher.Constraint("Tangent", 77, 1, 78, 1),
    Sketcher.Constraint("Tangent", 78, 2, 79, 2),
    Sketcher.Constraint("Tangent", 79, 1, 80, 1),
    Sketcher.Constraint("Tangent", 80, 2, 81, 2),
    Sketcher.Constraint("Tangent", 81, 1, 82, 1),
    Sketcher.Constraint("Tangent", 82, 2, 83, 1),
    Sketcher.Constraint("Tangent", 83, 2, 84, 1),
    Sketcher.Constraint("Tangent", 84, 2, 85, 1),
    Sketcher.Constraint("Tangent", 85, 2, 86, 1),
    Sketcher.Constraint("Tangent", 86, 2, 87, 1),
    Sketcher.Constraint("Tangent", 87, 2, 0, 1),
    Sketcher.Constraint("Horizontal", 0),
    Sketcher.Constraint("Vertical", 2),
    Sketcher.Constraint("Horizontal", 4),
    Sketcher.Constraint("Vertical", 6),
    Sketcher.Constraint("Horizontal", 10),
    Sketcher.Constraint("Vertical", 14),
    Sketcher.Constraint("Horizontal", 16),
    Sketcher.Constraint("Vertical", 18),
    Sketcher.Constraint("Horizontal", 20),
    Sketcher.Constraint("Vertical", 22),
    Sketcher.Constraint("Horizontal", 24),
    Sketcher.Constraint("Vertical", 26),
    Sketcher.Constraint("Horizontal", 28),
    Sketcher.Constraint("Vertical", 32),
    Sketcher.Constraint("Horizontal", 36),
    Sketcher.Constraint("Vertical", 38),
    Sketcher.Constraint("Horizontal", 40),
    Sketcher.Constraint("Vertical", 42),
    Sketcher.Constraint("Horizontal", 44),
    Sketcher.Constraint("Vertical", 46),
    Sketcher.Constraint("Horizontal", 48),
    Sketcher.Constraint("Vertical", 50),
    Sketcher.Constraint("Horizontal", 54),
    Sketcher.Constraint("Vertical", 58),
    Sketcher.Constraint("Horizontal", 60),
    Sketcher.Constraint("Vertical", 62),
    Sketcher.Constraint("Horizontal", 64),
    Sketcher.Constraint("Vertical", 66),
    Sketcher.Constraint("Horizontal", 68),
    Sketcher.Constraint("Vertical", 70),
    Sketcher.Constraint("Horizontal", 72),
    Sketcher.Constraint("Vertical", 76),
    Sketcher.Constraint("Horizontal", 80),
    Sketcher.Constraint("Vertical", 82),
    Sketcher.Constraint("Horizontal", 84),
    Sketcher.Constraint("Vertical", 86),
    Sketcher.Constraint("Equal", 1, 3),
    Sketcher.Constraint("Equal", 3, 5),
    Sketcher.Constraint("Equal", 7, 9),
    Sketcher.Constraint("Equal", 9, 11),
    Sketcher.Constraint("Equal", 11, 13),
    Sketcher.Constraint("Equal", 5, 15),
    Sketcher.Constraint("Equal", 15, 17),
    Sketcher.Constraint("Equal", 17, 19),
    Sketcher.Constraint("Equal", 19, 23),
    Sketcher.Constraint("Equal", 23, 25),
    Sketcher.Constraint("Equal", 25, 27),
    Sketcher.Constraint("Equal", 13, 29),
    Sketcher.Constraint("Equal", 27, 31),
    Sketcher.Constraint("Equal", 31, 33),
    Sketcher.Constraint("Equal", 33, 35),
    Sketcher.Constraint("Equal", 35, 37),
    Sketcher.Constraint("Equal", 37, 39),
    Sketcher.Constraint("Equal", 39, 41),
    Sketcher.Constraint("Equal", 21, 43),
    Sketcher.Constraint("Equal", 41, 45),
    Sketcher.Constraint("Equal", 45, 47),
    Sketcher.Constraint("Equal", 47, 49),
    Sketcher.Constraint("Equal", 49, 51),
    Sketcher.Constraint("Equal", 51, 53),
    Sketcher.Constraint("Equal", 53, 55),
    Sketcher.Constraint("Equal", 29, 57),
    Sketcher.Constraint("Equal", 55, 59),
    Sketcher.Constraint("Equal", 59, 61),
    Sketcher.Constraint("Equal", 61, 63),
    Sketcher.Constraint("Equal", 43, 65),
    Sketcher.Constraint("Equal", 63, 67),
    Sketcher.Constraint("Equal", 67, 69),
    Sketcher.Constraint("Equal", 69, 71),
    Sketcher.Constraint("Equal", 57, 73),
    Sketcher.Constraint("Equal", 73, 75),
    Sketcher.Constraint("Equal", 75, 77),
    Sketcher.Constraint("Equal", 77, 79),
    Sketcher.Constraint("Equal", 71, 81),
    Sketcher.Constraint("Equal", 81, 83),
    Sketcher.Constraint("Equal", 83, 85),
    Sketcher.Constraint("Equal", 65, 87),
    Sketcher.Constraint("Perpendicular", 8, 12),
    Sketcher.Constraint("Parallel", 12, 30),
    Sketcher.Constraint("Perpendicular", 30, 34),
    Sketcher.Constraint("Parallel", 34, 52),
    Sketcher.Constraint("Perpendicular", 52, 56),
    Sketcher.Constraint("Perpendicular", 56, 78),
    Sketcher.Constraint("Horizontal", 7, 3, 13, 3),
    Sketcher.Constraint("Horizontal", 5, 3, 15, 3),
    Sketcher.Constraint("Horizontal", 1, 3, 19, 3),
    Sketcher.Constraint("Horizontal", 49, 3, 59, 3),
    Sketcher.Constraint("Horizontal", 45, 3, 63, 3),
    Sketcher.Constraint("Horizontal", 29, 3, 79, 3),
    Sketcher.Constraint("Horizontal", 25, 3, 83, 3),
    Sketcher.Constraint("Horizontal", 87, 3, 3, 2),
    Sketcher.Constraint("Horizontal", 8, 2, 11, 1),
    Sketcher.Constraint("Horizontal", 77, 3, 31, 1),
    Sketcher.Constraint("Horizontal", 75, 3, 32, 2),
    Sketcher.Constraint("Horizontal", 42, 2, 47, 2),
    Sketcher.Constraint("Horizontal", 51, 1, 56, 2),
    Sketcher.Constraint("Horizontal", 33, 1, 74, 2),
    Sketcher.Constraint("Horizontal", 30, 2, 77, 1),
    Sketcher.Constraint("Vertical", 23, 3, 41, 3),
    Sketcher.Constraint("Vertical", 19, 3, 45, 3),
    Sketcher.Constraint("Vertical", 7, 3, 57, 3),
    Sketcher.Constraint("Vertical", 3, 3, 61, 3),
    Sketcher.Constraint("Vertical", 71, 3, 81, 3),
    Sketcher.Constraint("Vertical", 67, 3, 85, 3),
    Sketcher.Constraint("Vertical", 8, 2, 55, 1),
    Sketcher.Constraint("Vertical", 64, 2, 69, 2),
    Sketcher.Constraint("Equal", 0, 20),
    Sketcher.Constraint("Equal", 28, 36),
    Sketcher.Constraint("Equal", 10, 54),
    Sketcher.Constraint("Equal", 36, 80),
    Sketcher.Constraint("Equal", 80, 6),
    Sketcher.Constraint("Equal", 64, 22),
    Sketcher.Constraint("Equal", 60, 26),
    Sketcher.Constraint("Equal", 54, 32),
    Sketcher.Constraint("Equal", 26, 38),
    Sketcher.Constraint("Equal", 14, 58),
    Sketcher.Constraint("Equal", 22, 66),
    Sketcher.Constraint("Equal", 12, 30),
    Sketcher.Constraint("Equal", 30, 34),
    Sketcher.Constraint("Diameter", 88, Q("5 mm")),
    Sketcher.Constraint("Radius", 21, Q("1 mm")),
    Sketcher.Constraint("Radius", 1, Q("0.3 mm")),
    Sketcher.Constraint("DistanceX", 4, 2, 4, 1, Q("1 mm")),
    Sketcher.Constraint("DistanceX", 0, 1, 0, 2, Q("3.2 mm")),
    Sketcher.Constraint("DistanceX", -1, 1, 37, 1, Q("14 mm")),
    Sketcher.Constraint("DistanceY", -1, 1, 35, 3, Q("11.8 mm")),
    Sketcher.Constraint("DistanceX", -1, 1, 88, 3, Q("7.5 mm")),
    Sketcher.Constraint("DistanceY", -1, 1, 88, 3, Q("7.5 mm")),
    Sketcher.Constraint("Radius", 7, Q("0.305736 mm")),
    Sketcher.Constraint("DistanceX", 10, 1, 10, 2, Q("5.337258 mm")),
    Sketcher.Constraint("DistanceX", 28, 2, 28, 1, Q("0.768629 mm")),
    Sketcher.Constraint("DistanceX", 40, 1, 40, 2, Q("0.397149 mm")),
    Sketcher.Constraint("DistanceX", 48, 1, 48, 2, Q("1.00168 mm")),
    Sketcher.Constraint("DistanceX", 72, 1, 72, 2, Q("0.760779 mm")),
    Sketcher.Constraint("DistanceY", 42, 1, 42, 2, Q("3.189008 mm")),
    Sketcher.Constraint("DistanceY", 70, 1, 70, 2, Q("1.001191 mm")),
    Sketcher.Constraint("DistanceX", -1, 1, 55, 3, Q("4.8302 mm")),
    Sketcher.Constraint("DistanceX", 24, 2, 24, 1, Q("0.391887 mm")),
    Sketcher.Constraint("DistanceY", -1, 1, 33, 3, Q("10.141742 mm")),
])
sketch1.setExpression("Constraints[207]", "Params.sketch1_diameter")
sketch1.setExpression("Constraints[208]", "Params.sketch1_radius")
sketch1.setExpression("Constraints[209]", "Params.sketch1_radius2")
sketch1.setExpression("Constraints[210]", "Params.sketch1_width")
sketch1.setExpression("Constraints[211]", "Params.sketch1_width2")
pad1 = body.newObject("PartDesign::Pad", "Pad")
pad1.Profile = sketch1
pad1.setExpression("Length", "Params.pad1_length")

doc.recompute()
